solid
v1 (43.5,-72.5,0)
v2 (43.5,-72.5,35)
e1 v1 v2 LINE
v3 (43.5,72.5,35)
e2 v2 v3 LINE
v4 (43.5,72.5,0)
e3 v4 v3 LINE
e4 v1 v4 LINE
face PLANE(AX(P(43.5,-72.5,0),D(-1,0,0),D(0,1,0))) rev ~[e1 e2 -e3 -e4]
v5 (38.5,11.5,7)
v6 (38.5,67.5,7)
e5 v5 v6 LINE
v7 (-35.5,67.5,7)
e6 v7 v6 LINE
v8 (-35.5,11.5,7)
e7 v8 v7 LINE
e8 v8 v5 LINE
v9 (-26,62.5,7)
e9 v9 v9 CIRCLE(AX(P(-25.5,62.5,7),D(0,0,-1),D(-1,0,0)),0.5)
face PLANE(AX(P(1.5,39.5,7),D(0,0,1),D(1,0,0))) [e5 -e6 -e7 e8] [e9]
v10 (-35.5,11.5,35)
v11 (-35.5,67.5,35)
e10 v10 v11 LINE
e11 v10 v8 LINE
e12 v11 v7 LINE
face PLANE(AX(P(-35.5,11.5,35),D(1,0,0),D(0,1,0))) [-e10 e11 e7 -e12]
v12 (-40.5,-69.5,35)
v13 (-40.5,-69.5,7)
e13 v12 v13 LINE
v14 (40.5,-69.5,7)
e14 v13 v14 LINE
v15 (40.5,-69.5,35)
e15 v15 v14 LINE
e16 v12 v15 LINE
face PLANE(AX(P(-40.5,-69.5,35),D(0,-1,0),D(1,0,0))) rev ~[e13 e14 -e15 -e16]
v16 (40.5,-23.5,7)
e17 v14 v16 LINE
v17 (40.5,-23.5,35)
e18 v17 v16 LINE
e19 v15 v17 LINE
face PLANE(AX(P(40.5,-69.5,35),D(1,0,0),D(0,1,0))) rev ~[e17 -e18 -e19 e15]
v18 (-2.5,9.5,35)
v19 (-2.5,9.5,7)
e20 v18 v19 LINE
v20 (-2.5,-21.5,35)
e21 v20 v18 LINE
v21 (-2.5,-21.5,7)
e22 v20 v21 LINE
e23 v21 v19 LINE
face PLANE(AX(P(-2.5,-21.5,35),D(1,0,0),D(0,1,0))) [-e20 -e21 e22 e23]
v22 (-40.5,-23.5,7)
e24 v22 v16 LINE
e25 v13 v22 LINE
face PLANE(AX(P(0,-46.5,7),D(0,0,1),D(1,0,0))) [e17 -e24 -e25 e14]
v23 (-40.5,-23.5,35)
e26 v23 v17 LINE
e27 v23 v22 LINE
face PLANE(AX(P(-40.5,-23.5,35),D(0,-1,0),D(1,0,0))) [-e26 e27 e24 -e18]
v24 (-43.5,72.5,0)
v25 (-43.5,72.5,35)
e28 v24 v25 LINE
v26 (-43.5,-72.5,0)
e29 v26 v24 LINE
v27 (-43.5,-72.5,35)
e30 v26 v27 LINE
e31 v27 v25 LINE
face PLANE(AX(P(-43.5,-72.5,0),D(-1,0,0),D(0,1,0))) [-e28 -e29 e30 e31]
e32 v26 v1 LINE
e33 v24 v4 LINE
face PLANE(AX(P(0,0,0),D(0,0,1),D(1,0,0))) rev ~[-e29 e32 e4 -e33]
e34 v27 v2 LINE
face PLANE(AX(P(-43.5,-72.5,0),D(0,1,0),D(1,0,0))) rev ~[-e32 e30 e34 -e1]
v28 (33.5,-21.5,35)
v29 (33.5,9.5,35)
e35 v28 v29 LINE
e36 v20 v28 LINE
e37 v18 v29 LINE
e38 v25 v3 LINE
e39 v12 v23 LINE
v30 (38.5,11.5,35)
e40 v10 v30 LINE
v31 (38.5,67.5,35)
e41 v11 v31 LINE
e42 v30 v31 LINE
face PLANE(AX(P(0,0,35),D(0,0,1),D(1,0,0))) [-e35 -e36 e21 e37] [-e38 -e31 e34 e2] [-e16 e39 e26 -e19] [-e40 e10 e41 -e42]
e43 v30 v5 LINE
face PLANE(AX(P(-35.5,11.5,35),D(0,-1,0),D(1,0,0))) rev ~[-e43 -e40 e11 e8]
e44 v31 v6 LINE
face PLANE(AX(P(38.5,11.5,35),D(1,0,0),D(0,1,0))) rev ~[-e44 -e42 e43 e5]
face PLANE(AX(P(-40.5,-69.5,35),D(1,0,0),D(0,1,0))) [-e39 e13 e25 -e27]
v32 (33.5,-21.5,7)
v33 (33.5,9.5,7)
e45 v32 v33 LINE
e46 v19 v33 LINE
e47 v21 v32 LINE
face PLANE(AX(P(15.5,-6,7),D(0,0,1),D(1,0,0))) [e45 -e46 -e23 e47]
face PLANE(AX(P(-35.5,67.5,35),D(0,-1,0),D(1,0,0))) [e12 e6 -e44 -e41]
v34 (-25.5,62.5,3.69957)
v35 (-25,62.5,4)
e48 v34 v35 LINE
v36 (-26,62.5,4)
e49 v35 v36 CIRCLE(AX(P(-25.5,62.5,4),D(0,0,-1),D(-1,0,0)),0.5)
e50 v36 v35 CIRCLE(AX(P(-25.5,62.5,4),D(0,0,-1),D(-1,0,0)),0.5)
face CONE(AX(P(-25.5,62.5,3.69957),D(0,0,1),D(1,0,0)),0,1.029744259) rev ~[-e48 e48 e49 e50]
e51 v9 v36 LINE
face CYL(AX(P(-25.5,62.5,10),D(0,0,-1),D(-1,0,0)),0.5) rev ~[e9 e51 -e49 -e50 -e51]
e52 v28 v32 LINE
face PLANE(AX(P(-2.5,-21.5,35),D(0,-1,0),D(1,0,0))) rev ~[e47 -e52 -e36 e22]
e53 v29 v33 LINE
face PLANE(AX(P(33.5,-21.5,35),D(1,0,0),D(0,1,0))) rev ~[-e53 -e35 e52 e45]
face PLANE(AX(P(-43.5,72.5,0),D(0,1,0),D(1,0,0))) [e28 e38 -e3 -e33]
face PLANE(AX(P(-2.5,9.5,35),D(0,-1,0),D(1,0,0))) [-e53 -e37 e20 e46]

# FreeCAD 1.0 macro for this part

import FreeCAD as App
import Part
import Sketcher

V = App.Vector
Q = App.Units.Quantity


def add_polygon(sketch, points):
    """Adds a closed chain of lines whose ends are joined by coincident constraints."""
    first, n = sketch.GeometryCount, len(points)
    for a, b in zip(points, points[1:] + points[:1]):
        sketch.addGeometry(Part.LineSegment(App.Vector(*a, 0), App.Vector(*b, 0)), False)
    for i in range(n):
        sketch.addConstraint(Sketcher.Constraint("Coincident", first + i, 2, first + (i + 1) % n, 1))

doc = App.newDocument("Part")
params = doc.addObject("Spreadsheet::Sheet", "Params")
for row, (alias, value) in enumerate([
    ("sketch1_width", "87 mm"),
    ("sketch1_height", "145 mm"),
    ("pad1_length", "35 mm"),
    ("sketch2_width", "74 mm"),
    ("sketch2_width2", "36 mm"),
    ("sketch2_width3", "81 mm"),
    ("sketch2_height", "56 mm"),
    ("sketch2_height2", "31 mm"),
    ("pocket1_length", "28 mm"),
    ("sketch3_diameter", "1 mm"),
    ("hole_diameter", "1 mm"),
    ("hole_depth", "28 mm"),
    ("sketch4_diameter", "1 mm"),
    ("hole2_diameter", "1 mm"),
    ("hole2_depth", "3 mm"),
], start=1):
    params.set(f"A{row}", alias)
    params.set(f"B{row}", "=" + value)
    params.setAlias(f"B{row}", alias)

body = doc.addObject("PartDesign::Body", "Body")

sketch1 = body.newObject("Sketcher::SketchObject", "Sketch")
sketch1.AttachmentSupport = (doc.getObject("XY_Plane"), [""])
sketch1.MapMode = "FlatFace"
add_polygon(sketch1, [(-43.5, 72.5), (-43.5, -72.5), (43.5, -72.5), (43.5, 72.5)])
sketch1.addConstraint(Sketcher.Constraint("Vertical", 0))
sketch1.addConstraint(Sketcher.Constraint("Horizontal", 1))
sketch1.addConstraint(Sketcher.Constraint("Vertical", 2))
sketch1.addConstraint(Sketcher.Constraint("Horizontal", 3))
sketch1.addConstraint(Sketcher.Constraint("Symmetric", 0, 2, 2, 2, -1, 1))
sketch1.addConstraint(Sketcher.Constraint("DistanceX", 1, 1, 1, 2, Q("87 mm")))
sketch1.addConstraint(Sketcher.Constraint("DistanceY", 0, 2, 0, 1, Q("145 mm")))
sketch1.setExpression("Constraints[9]", "Params.sketch1_width")
sketch1.setExpression("Constraints[10]", "Params.sketch1_height")
pad1 = body.newObject("PartDesign::Pad", "Pad")
pad1.Profile = sketch1
pad1.setExpression("Length", "Params.pad1_length")

sketch2 = body.newObject("Sketcher::SketchObject", "Sketch001")
sketch2.AttachmentSupport = (doc.getObject("XY_Plane"), [""])
sketch2.MapMode = "FlatFace"
sketch2.AttachmentOffset = App.Placement(V(0, 0, 35), App.Rotation())
add_polygon(sketch2, [(-35.5, 67.5), (-35.5, 11.5), (38.5, 11.5), (38.5, 67.5)])
add_polygon(sketch2, [(-2.5, 9.5), (-2.5, -21.5), (33.5, -21.5), (33.5, 9.5)])
add_polygon(sketch2, [(-40.5, -23.5), (-40.5, -69.5), (40.5, -69.5), (40.5, -23.5)])
sketch2.addConstraint(Sketcher.Constraint("Vertical", 0))
sketch2.addConstraint(Sketcher.Constraint("Horizontal", 1))
sketch2.addConstraint(Sketcher.Constraint("Vertical", 2))
sketch2.addConstraint(Sketcher.Constraint("Horizontal", 3))
sketch2.addConstraint(Sketcher.Constraint("Vertical", 4))
sketch2.addConstraint(Sketcher.Constraint("Horizontal", 5))
sketch2.addConstraint(Sketcher.Constraint("Vertical", 6))
sketch2.addConstraint(Sketcher.Constraint("Horizontal", 7))
sketch2.addConstraint(Sketcher.Constraint("Vertical", 8))
sketch2.addConstraint(Sketcher.Constraint("Horizontal", 9))
sketch2.addConstraint(Sketcher.Constraint("Vertical", 10))
sketch2.addConstraint(Sketcher.Constraint("Horizontal", 11))
sketch2.addConstraint(Sketcher.Constraint("DistanceX", 1, 1, 1, 2, Q("74 mm")))
sketch2.addConstraint(Sketcher.Constraint("DistanceX", 5, 1, 5, 2, Q("36 mm")))
sketch2.addConstraint(Sketcher.Constraint("DistanceX", 9, 1, 9, 2, Q("81 mm")))
sketch2.addConstraint(Sketcher.Constraint("DistanceY", 0, 2, 0, 1, Q("56 mm")))
sketch2.addConstraint(Sketcher.Constraint("DistanceY", 4, 2, 4, 1, Q("31 mm")))
sketch2.addConstraint(Sketcher.Constraint("DistanceY", 8, 2, 8, 1, Q("46 mm")))
sketch2.addConstraint(Sketcher.Constraint("DistanceX", 0, 2, 4, 2, Q("33 mm")))
sketch2.addConstraint(Sketcher.Constraint("DistanceY", 4, 2, 0, 2, Q("33 mm")))
sketch2.addConstraint(Sketcher.Constraint("DistanceX", 8, 2, 4, 2, Q("38 mm")))
sketch2.addConstraint(Sketcher.Constraint("DistanceY", 8, 2, 4, 2, Q("48 mm")))
sketch2.addConstraint(Sketcher.Constraint("DistanceX", 0, 2, -1, 1, Q("35.5 mm")))
sketch2.addConstraint(Sketcher.Constraint("DistanceY", -1, 1, 0, 2, Q("11.5 mm")))
sketch2.setExpression("Constraints[24]", "Params.sketch2_width")
sketch2.setExpression("Constraints[25]", "Params.sketch2_width2")
sketch2.setExpression("Constraints[26]", "Params.sketch2_width3")
sketch2.setExpression("Constraints[27]", "Params.sketch2_height")
sketch2.setExpression("Constraints[28]", "Params.sketch2_height2")
pocket1 = body.newObject("PartDesign::Pocket", "Pocket")
pocket1.Profile = sketch2
pocket1.setExpression("Length", "Params.pocket1_length")

sketch3 = body.newObject("Sketcher::SketchObject", "Sketch002")
sketch3.AttachmentSupport = (doc.getObject("XY_Plane"), [""])
sketch3.MapMode = "FlatFace"
sketch3.AttachmentOffset = App.Placement(V(0, 0, 35), App.Rotation())
sketch3.addGeometry(Part.Circle(V(-25.5, 62.5, 0), V(0, 0, 1), 0.5), False)
sketch3.addConstraint(Sketcher.Constraint("Diameter", 0, Q("1 mm")))
sketch3.addConstraint(Sketcher.Constraint("DistanceX", 0, 3, -1, 1, Q("25.5 mm")))
sketch3.addConstraint(Sketcher.Constraint("DistanceY", -1, 1, 0, 3, Q("62.5 mm")))
sketch3.setExpression("Constraints[0]", "Params.sketch3_diameter")
doc.recompute()
hole = body.newObject("PartDesign::Hole", "Hole")
hole.Profile = sketch3
hole.ThreadType = "None"
hole.setExpression("Diameter", "Params.hole_diameter")
hole.DepthType = "Dimension"
hole.setExpression("Depth", "Params.hole_depth")
hole.DrillPoint = "Flat"

sketch4 = body.newObject("Sketcher::SketchObject", "Sketch003")
sketch4.AttachmentSupport = (doc.getObject("XY_Plane"), [""])
sketch4.MapMode = "FlatFace"
sketch4.AttachmentOffset = App.Placement(V(0, 0, 7), App.Rotation())
sketch4.addGeometry(Part.Circle(V(-25.5, 62.5, 0), V(0, 0, 1), 0.5), False)
sketch4.addConstraint(Sketcher.Constraint("Diameter", 0, Q("1 mm")))
sketch4.addConstraint(Sketcher.Constraint("DistanceX", 0, 3, -1, 1, Q("25.5 mm")))
sketch4.addConstraint(Sketcher.Constraint("DistanceY", -1, 1, 0, 3, Q("62.5 mm")))
sketch4.setExpression("Constraints[0]", "Params.sketch4_diameter")
doc.recompute()
hole2 = body.newObject("PartDesign::Hole", "Hole001")
hole2.Profile = sketch4
hole2.ThreadType = "None"
hole2.setExpression("Diameter", "Params.hole2_diameter")
hole2.DepthType = "Dimension"
hole2.setExpression("Depth", "Params.hole2_depth")
hole2.DrillPoint = "Angled"
hole2.DrillPointAngle = 118

doc.recompute()
